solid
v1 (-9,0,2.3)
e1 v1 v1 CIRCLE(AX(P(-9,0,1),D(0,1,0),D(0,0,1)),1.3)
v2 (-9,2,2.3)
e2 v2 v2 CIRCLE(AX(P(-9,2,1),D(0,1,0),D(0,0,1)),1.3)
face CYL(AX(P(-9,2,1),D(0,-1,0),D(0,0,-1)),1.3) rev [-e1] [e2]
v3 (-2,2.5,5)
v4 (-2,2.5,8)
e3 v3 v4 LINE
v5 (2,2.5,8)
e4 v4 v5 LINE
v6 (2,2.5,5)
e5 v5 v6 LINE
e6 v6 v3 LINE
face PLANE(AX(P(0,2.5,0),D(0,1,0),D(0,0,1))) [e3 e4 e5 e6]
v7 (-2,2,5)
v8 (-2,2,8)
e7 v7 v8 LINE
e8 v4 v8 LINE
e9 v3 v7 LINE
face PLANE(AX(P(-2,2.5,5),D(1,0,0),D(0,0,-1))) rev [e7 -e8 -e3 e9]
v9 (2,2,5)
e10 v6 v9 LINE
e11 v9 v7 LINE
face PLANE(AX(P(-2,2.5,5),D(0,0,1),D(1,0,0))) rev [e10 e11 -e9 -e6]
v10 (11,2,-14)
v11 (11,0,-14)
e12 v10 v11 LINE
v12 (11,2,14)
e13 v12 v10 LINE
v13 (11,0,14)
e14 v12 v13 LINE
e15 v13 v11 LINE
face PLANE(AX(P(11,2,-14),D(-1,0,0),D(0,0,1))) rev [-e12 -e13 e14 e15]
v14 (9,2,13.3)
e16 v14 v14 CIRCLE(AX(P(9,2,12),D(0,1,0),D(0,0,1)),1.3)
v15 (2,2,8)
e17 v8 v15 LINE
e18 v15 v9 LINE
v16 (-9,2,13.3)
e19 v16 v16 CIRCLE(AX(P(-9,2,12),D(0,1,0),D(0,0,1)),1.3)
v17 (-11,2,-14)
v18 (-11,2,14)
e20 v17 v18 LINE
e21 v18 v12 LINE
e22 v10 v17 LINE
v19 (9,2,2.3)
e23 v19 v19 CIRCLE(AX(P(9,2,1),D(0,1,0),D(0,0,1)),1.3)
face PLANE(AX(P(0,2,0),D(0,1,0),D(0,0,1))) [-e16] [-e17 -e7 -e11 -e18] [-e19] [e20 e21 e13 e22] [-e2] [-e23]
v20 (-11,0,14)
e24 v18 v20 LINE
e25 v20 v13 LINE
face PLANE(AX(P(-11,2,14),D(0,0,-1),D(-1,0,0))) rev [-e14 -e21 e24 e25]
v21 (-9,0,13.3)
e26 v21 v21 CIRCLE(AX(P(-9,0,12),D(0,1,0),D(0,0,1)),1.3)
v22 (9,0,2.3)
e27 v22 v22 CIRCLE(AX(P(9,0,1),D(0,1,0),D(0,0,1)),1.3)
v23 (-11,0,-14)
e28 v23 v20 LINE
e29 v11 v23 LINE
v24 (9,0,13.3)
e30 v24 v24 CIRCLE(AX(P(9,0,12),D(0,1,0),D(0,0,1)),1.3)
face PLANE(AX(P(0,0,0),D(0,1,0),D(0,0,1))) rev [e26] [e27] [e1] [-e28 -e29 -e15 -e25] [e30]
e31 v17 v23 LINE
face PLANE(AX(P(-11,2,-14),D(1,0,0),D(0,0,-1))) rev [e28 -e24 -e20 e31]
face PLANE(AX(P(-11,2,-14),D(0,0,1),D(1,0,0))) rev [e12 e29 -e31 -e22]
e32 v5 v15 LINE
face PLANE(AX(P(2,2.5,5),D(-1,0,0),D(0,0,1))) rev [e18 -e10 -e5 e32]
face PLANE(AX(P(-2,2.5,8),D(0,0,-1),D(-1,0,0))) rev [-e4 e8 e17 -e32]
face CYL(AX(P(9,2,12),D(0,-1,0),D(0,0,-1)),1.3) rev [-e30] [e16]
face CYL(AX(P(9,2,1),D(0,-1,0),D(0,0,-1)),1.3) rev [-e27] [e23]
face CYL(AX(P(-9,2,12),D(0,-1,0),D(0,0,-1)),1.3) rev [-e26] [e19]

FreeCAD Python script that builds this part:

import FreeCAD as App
import Part
import Sketcher

doc = App.newDocument("Part")
body = doc.addObject("PartDesign::Body", "Body")

sketch1 = body.newObject("Sketcher::SketchObject", "Sketch")
sketch1.AttachmentSupport = (doc.getObject("XZ_Plane"), [""])
sketch1.MapMode = "FlatFace"
sketch1.addGeometry([
    Part.LineSegment(App.Vector(-11, -14, 0), App.Vector(-11, 14, 0)),
    Part.LineSegment(App.Vector(-11, 14, 0), App.Vector(11, 14, 0)),
    Part.LineSegment(App.Vector(11, 14, 0), App.Vector(11, -14, 0)),
    Part.LineSegment(App.Vector(11, -14, 0), App.Vector(-11, -14, 0)),
    Part.Circle(App.Vector(-9, 12, 0), App.Vector(0, 0, 1), 1.3),
    Part.Circle(App.Vector(9, 12, 0), App.Vector(0, 0, 1), 1.3),
    Part.Circle(App.Vector(-9, 1, 0), App.Vector(0, 0, 1), 1.3),
    Part.Circle(App.Vector(9, 1, 0), App.Vector(0, 0, 1), 1.3),
], False)
sketch1.addConstraint([
    Sketcher.Constraint("Coincident", 0, 2, 1, 1),
    Sketcher.Constraint("Coincident", 1, 2, 2, 1),
    Sketcher.Constraint("Coincident", 2, 2, 3, 1),
    Sketcher.Constraint("Coincident", 3, 2, 0, 1),
    Sketcher.Constraint("Vertical", 0),
    Sketcher.Constraint("Horizontal", 1),
    Sketcher.Constraint("Vertical", 2),
    Sketcher.Constraint("Horizontal", 3),
    Sketcher.Constraint("Equal", 4, 5),
    Sketcher.Constraint("Equal", 5, 6),
    Sketcher.Constraint("Equal", 6, 7),
    Sketcher.Constraint("Symmetric", 0, 2, 2, 2, -1, 1),
    Sketcher.Constraint("Symmetric", 4, 3, 5, 3, -2),
    Sketcher.Constraint("Symmetric", 6, 3, 7, 3, -2),
    Sketcher.Constraint("Vertical", 4, 3, 6, 3),
    Sketcher.Constraint("Diameter", 4, 2.6),
    Sketcher.Constraint("DistanceX", 1, 1, 1, 2, 22.0),
    Sketcher.Constraint("DistanceY", 0, 1, 0, 2, 28.0),
    Sketcher.Constraint("DistanceX", 4, 3, -1, 1, 9.0),
    Sketcher.Constraint("DistanceY", -1, 1, 4, 3, 12.0),
    Sketcher.Constraint("DistanceY", -1, 1, 6, 3, 1.0),
])
pad1 = body.newObject("PartDesign::Pad", "Pad")
pad1.Profile = sketch1
pad1.Length = 2
pad1.Reversed = True

sketch2 = body.newObject("Sketcher::SketchObject", "Sketch001")
sketch2.AttachmentSupport = (doc.getObject("XZ_Plane"), [""])
sketch2.MapMode = "FlatFace"
sketch2.AttachmentOffset = App.Placement(App.Vector(0, 0, -2), App.Rotation())
sketch2.addGeometry([
    Part.LineSegment(App.Vector(-2, 5, 0), App.Vector(-2, 8, 0)),
    Part.LineSegment(App.Vector(-2, 8, 0), App.Vector(2, 8, 0)),
    Part.LineSegment(App.Vector(2, 8, 0), App.Vector(2, 5, 0)),
    Part.LineSegment(App.Vector(2, 5, 0), App.Vector(-2, 5, 0)),
], False)
sketch2.addConstraint([
    Sketcher.Constraint("Coincident", 0, 2, 1, 1),
    Sketcher.Constraint("Coincident", 1, 2, 2, 1),
    Sketcher.Constraint("Coincident", 2, 2, 3, 1),
    Sketcher.Constraint("Coincident", 3, 2, 0, 1),
    Sketcher.Constraint("Vertical", 0),
    Sketcher.Constraint("Horizontal", 1),
    Sketcher.Constraint("Vertical", 2),
    Sketcher.Constraint("Horizontal", 3),
    Sketcher.Constraint("DistanceX", 1, 1, 1, 2, 4.0),
    Sketcher.Constraint("DistanceY", 0, 1, 0, 2, 3.0),
    Sketcher.Constraint("DistanceX", 0, 2, -1, 1, 2.0),
    Sketcher.Constraint("DistanceY", -1, 1, 0, 2, 8.0),
])
pad2 = body.newObject("PartDesign::Pad", "Pad001")
pad2.Profile = sketch2
pad2.Length = 0.5
pad2.Reversed = True

doc.recompute()
